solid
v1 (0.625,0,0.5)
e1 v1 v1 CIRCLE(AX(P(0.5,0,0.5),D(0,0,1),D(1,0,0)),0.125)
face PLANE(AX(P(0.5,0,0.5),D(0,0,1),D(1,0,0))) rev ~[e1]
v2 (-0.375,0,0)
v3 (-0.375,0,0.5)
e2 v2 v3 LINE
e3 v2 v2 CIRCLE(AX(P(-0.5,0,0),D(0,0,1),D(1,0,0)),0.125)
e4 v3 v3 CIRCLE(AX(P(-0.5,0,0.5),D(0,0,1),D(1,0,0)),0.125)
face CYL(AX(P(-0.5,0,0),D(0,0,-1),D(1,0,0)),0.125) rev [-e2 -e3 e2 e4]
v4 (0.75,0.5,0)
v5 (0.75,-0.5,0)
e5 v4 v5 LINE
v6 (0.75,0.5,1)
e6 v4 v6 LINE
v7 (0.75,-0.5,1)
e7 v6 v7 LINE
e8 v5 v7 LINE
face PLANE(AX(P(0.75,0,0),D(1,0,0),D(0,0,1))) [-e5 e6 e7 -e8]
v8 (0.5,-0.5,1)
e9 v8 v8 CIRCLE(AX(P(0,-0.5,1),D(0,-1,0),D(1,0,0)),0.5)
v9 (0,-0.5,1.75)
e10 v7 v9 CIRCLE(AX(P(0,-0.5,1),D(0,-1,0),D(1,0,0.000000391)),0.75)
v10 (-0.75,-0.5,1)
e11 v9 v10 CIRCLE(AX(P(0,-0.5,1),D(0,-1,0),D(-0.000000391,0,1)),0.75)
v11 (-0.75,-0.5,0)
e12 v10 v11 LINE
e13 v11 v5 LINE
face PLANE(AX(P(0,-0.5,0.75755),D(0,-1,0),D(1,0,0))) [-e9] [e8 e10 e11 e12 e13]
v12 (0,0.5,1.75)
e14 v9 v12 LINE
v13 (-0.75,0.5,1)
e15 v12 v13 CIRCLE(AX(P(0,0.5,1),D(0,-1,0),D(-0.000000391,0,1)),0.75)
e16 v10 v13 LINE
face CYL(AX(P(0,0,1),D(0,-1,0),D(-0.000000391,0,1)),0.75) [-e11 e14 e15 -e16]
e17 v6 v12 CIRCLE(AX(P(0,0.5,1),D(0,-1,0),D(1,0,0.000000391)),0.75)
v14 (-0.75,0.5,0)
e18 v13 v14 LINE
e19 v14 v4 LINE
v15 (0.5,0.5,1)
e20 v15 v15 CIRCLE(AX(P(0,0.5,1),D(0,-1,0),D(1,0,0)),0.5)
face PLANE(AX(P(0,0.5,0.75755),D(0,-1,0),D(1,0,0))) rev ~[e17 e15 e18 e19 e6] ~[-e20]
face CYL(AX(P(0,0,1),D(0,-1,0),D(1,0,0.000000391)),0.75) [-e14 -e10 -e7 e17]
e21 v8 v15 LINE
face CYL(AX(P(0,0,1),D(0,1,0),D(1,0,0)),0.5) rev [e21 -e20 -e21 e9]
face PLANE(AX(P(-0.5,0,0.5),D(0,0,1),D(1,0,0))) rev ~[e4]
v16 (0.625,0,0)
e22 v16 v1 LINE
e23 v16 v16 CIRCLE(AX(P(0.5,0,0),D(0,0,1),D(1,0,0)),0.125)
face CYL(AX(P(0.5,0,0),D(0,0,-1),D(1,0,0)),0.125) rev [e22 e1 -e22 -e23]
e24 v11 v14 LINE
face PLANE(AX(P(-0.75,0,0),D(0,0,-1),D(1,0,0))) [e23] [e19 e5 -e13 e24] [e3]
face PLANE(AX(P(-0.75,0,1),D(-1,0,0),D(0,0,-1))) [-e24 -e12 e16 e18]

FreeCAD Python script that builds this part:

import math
import FreeCAD as App
import Part
import Sketcher
from FreeCAD import Vector
Q = App.Units.Quantity

doc = App.newDocument("Part")
params = doc.addObject("Spreadsheet::Sheet", "Params")
for row, (alias, value) in enumerate([
    ("sketch1_diameter", "1 mm"),
    ("sketch1_height", "1 mm"),
    ("sketch1_radius", "0.75 mm"),
    ("pad1_length", "1 mm"),
    ("sketch2_diameter", "0.25 mm"),
    ("pocket1_length", "0.5 mm"),
], start=1):
    params.set(f"A{row}", alias)
    params.set(f"B{row}", "=" + value)
    params.setAlias(f"B{row}", alias)

body = doc.addObject("PartDesign::Body", "Body")

# Sketch on XZ plane
sketch1 = body.newObject("Sketcher::SketchObject", "Sketch")
sketch1.AttachmentSupport = (doc.getObject("XZ_Plane"), [""])
sketch1.MapMode = "FlatFace"
sketch1.addGeometry([
    Part.LineSegment(Vector(-0.8, 0, 0), Vector(0.8, 0, 0)),  # 0
    Part.LineSegment(Vector(0.8, 0, 0), Vector(0.8, 1, 0)),  # 1
    Part.ArcOfCircle(Part.Circle(Vector(0, 1, 0), Vector(0, 0, 1), 0.8), math.radians(0), math.radians(90)),  # 2
    Part.ArcOfCircle(Part.Circle(Vector(0, 1, 0), Vector(0, 0, 1), 0.8), math.radians(90), math.radians(180)),  # 3
    Part.LineSegment(Vector(-0.8, 1, 0), Vector(-0.8, 0, 0)),  # 4
    Part.Circle(Vector(0, 1, 0), Vector(0, 0, 1), 0.5),  # 5
], False)
sketch1.addConstraint([
    Sketcher.Constraint("Coincident", 0, 2, 1, 1),
    Sketcher.Constraint("Tangent", 1, 2, 2, 1),
    Sketcher.Constraint("Tangent", 2, 2, 3, 1),
    Sketcher.Constraint("Tangent", 3, 2, 4, 1),
    Sketcher.Constraint("Coincident", 4, 2, 0, 1),
    Sketcher.Constraint("Horizontal", 0),
    Sketcher.Constraint("Vertical", 1),
    Sketcher.Constraint("Vertical", 4),
    Sketcher.Constraint("Coincident", 5, 3, 2, 3),
    Sketcher.Constraint("Equal", 2, 3),
    Sketcher.Constraint("Symmetric", 0, 2, 4, 2, -1, 1),
    Sketcher.Constraint("PointOnObject", 2, 2, -2),
    Sketcher.Constraint("Diameter", 5, Q("1 mm")),
    Sketcher.Constraint("DistanceY", 1, 1, 1, 2, Q("1 mm")),
    Sketcher.Constraint("Radius", 2, Q("0.75 mm")),
])
sketch1.setExpression("Constraints[12]", "Params.sketch1_diameter")
sketch1.setExpression("Constraints[13]", "Params.sketch1_height")
sketch1.setExpression("Constraints[14]", "Params.sketch1_radius")
pad1 = body.newObject("PartDesign::Pad", "Pad")
pad1.Profile = sketch1
pad1.setExpression("Length", "Params.pad1_length")
pad1.Midplane = True

# Sketch on XY plane
sketch2 = body.newObject("Sketcher::SketchObject", "Sketch001")
sketch2.AttachmentSupport = (doc.getObject("XY_Plane"), [""])
sketch2.MapMode = "FlatFace"
sketch2.addGeometry([
    Part.Circle(Vector(-0.5, 0, 0), Vector(0, 0, 1), 0.12),
    Part.Circle(Vector(0.5, 0, 0), Vector(0, 0, 1), 0.12),
], False)
sketch2.addConstraint([
    Sketcher.Constraint("Equal", 0, 1),
    Sketcher.Constraint("Symmetric", 0, 3, 1, 3, -1, 1),
    Sketcher.Constraint("PointOnObject", 0, 3, -1),
    Sketcher.Constraint("Diameter", 0, Q("0.25 mm")),
    Sketcher.Constraint("DistanceX", 0, 3, 1, 3, Q("1 mm")),
])
sketch2.setExpression("Constraints[3]", "Params.sketch2_diameter")
pocket1 = body.newObject("PartDesign::Pocket", "Pocket")
pocket1.Profile = sketch2
pocket1.setExpression("Length", "Params.pocket1_length")
pocket1.Reversed = True

doc.recompute()
